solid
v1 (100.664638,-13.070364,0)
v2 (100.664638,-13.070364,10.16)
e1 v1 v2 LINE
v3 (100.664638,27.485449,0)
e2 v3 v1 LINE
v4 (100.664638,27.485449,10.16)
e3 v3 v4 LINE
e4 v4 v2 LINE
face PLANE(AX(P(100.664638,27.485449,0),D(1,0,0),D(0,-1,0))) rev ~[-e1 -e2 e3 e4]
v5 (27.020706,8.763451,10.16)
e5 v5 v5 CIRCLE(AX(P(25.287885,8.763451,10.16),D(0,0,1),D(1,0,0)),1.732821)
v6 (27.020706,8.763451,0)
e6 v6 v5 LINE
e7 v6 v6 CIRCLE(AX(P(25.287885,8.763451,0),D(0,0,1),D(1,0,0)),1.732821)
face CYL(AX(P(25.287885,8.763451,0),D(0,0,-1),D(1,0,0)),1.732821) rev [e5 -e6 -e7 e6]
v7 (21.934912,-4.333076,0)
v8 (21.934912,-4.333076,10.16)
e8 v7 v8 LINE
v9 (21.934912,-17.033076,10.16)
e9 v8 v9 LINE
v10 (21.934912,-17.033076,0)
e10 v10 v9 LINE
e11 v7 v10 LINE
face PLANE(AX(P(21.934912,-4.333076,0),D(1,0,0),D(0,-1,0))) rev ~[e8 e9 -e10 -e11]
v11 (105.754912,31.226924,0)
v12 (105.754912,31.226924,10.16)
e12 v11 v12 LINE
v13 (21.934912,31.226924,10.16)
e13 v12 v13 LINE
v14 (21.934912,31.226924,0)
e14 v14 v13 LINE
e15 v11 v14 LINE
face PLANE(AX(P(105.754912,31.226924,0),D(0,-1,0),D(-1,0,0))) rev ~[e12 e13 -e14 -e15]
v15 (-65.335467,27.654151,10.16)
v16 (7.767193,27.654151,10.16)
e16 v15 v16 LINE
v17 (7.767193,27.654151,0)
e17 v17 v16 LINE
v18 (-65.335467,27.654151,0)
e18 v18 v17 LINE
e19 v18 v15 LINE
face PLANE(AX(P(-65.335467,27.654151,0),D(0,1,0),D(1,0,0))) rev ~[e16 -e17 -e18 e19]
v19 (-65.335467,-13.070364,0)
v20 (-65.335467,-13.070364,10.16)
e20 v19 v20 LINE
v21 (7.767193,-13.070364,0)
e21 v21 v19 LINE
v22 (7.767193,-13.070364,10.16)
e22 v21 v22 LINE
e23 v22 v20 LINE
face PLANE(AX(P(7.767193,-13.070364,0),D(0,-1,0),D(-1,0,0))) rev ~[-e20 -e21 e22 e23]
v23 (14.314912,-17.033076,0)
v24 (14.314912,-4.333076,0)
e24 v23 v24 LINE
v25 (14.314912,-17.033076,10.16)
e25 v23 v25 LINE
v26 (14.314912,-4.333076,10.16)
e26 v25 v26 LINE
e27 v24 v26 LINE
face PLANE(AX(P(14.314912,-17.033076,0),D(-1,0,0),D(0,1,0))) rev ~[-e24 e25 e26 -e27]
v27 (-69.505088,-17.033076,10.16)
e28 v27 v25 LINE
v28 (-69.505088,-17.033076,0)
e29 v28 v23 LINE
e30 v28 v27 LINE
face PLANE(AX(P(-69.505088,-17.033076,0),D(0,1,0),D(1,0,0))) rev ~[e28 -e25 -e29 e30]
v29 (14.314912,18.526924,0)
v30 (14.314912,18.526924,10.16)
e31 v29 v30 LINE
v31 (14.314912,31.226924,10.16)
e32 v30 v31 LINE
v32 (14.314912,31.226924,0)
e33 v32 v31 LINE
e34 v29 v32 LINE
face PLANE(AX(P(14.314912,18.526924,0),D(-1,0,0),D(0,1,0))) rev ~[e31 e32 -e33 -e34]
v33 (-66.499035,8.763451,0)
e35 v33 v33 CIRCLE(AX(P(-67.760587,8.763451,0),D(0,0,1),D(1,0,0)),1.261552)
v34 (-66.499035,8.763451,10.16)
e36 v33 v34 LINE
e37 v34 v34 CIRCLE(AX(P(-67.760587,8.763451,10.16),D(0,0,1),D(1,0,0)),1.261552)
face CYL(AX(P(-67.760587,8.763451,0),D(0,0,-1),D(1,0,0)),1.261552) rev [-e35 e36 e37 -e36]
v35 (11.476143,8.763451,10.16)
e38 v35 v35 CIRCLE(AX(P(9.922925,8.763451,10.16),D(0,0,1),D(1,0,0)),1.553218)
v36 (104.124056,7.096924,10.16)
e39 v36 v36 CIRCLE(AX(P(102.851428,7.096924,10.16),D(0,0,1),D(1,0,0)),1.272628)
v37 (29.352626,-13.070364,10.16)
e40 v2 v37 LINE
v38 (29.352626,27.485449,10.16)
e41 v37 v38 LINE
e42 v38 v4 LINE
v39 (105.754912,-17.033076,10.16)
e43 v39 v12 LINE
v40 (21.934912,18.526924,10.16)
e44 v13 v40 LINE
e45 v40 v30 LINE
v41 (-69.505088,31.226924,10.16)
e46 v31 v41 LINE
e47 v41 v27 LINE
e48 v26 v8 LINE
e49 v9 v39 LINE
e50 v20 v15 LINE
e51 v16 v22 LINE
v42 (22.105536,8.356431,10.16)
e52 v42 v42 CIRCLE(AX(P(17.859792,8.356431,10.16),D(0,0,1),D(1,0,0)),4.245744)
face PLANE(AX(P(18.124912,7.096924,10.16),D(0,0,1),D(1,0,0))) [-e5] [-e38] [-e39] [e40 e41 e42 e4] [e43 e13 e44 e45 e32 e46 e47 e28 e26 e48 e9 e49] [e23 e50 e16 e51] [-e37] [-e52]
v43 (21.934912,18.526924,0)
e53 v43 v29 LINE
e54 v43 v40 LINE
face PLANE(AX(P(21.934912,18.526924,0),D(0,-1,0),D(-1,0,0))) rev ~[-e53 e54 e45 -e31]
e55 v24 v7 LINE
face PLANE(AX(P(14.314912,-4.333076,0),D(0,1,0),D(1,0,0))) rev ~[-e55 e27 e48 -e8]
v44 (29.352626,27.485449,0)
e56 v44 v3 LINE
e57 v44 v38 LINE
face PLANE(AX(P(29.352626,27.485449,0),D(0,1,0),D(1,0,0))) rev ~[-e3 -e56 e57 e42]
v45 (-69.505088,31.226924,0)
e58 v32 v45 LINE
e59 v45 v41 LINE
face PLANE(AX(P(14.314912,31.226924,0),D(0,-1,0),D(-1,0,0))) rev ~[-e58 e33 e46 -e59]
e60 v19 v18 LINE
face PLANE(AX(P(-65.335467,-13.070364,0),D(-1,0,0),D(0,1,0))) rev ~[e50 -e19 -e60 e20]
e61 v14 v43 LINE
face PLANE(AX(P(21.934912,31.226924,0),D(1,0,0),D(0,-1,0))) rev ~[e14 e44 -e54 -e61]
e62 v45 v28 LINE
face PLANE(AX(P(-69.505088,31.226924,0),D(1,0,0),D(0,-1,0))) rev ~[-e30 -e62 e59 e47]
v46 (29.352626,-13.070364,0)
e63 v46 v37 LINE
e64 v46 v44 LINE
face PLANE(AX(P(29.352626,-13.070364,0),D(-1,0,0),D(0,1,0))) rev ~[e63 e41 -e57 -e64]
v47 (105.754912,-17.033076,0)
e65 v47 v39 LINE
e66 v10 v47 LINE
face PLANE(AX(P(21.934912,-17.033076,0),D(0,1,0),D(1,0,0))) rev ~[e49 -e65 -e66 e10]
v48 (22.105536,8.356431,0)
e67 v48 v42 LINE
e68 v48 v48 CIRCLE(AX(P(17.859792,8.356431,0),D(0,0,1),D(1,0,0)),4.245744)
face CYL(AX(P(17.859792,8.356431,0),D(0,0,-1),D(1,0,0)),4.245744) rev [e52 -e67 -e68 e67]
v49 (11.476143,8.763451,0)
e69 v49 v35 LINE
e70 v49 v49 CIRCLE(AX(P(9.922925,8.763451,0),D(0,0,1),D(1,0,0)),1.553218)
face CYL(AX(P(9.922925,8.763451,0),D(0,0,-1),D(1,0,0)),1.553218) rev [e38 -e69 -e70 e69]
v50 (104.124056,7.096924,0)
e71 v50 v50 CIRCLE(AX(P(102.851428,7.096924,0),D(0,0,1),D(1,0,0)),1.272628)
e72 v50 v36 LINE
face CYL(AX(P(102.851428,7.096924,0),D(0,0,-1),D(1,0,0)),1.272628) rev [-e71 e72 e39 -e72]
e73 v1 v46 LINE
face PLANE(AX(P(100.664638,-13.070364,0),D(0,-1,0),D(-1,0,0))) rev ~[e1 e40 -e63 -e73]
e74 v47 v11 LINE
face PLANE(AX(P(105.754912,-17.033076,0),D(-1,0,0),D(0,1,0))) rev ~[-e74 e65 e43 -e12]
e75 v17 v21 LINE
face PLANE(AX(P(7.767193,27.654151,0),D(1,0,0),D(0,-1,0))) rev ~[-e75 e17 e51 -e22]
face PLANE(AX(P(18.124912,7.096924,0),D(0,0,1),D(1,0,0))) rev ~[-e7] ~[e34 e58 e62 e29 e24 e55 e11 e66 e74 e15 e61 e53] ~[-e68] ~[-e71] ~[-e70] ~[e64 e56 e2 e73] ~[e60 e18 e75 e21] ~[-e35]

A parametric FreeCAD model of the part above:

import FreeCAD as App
import Part
import Sketcher
Q = App.Units.Quantity

doc = App.newDocument("Part")
body = doc.addObject("PartDesign::Body", "Body")

# Sketch on XY plane
sketch1 = doc.addObject("Sketcher::SketchObject", "Sketch")
body.addObject(sketch1)
sketch1.AttachmentSupport = (doc.XY_Plane, [""])
sketch1.MapMode = "FlatFace"
sketch1.addGeometry([
    Part.LineSegment(App.Vector(14.3, 31.2, 0), App.Vector(-69.5, 31.2, 0)),  # 0
    Part.LineSegment(App.Vector(-69.5, 31.2, 0), App.Vector(-69.5, -17, 0)),  # 1
    Part.LineSegment(App.Vector(-69.5, -17, 0), App.Vector(14.3, -17, 0)),  # 2
    Part.LineSegment(App.Vector(14.3, -17, 0), App.Vector(14.3, -4.3, 0)),  # 3
    Part.LineSegment(App.Vector(14.3, -4.3, 0), App.Vector(21.9, -4.3, 0)),  # 4
    Part.LineSegment(App.Vector(21.9, -4.3, 0), App.Vector(21.9, -17, 0)),  # 5
    Part.LineSegment(App.Vector(21.9, -17, 0), App.Vector(105.8, -17, 0)),  # 6
    Part.LineSegment(App.Vector(105.8, -17, 0), App.Vector(105.8, 31.2, 0)),  # 7
    Part.LineSegment(App.Vector(105.8, 31.2, 0), App.Vector(21.9, 31.2, 0)),  # 8
    Part.LineSegment(App.Vector(21.9, 31.2, 0), App.Vector(21.9, 18.5, 0)),  # 9
    Part.LineSegment(App.Vector(21.9, 18.5, 0), App.Vector(14.3, 18.5, 0)),  # 10
    Part.LineSegment(App.Vector(14.3, 18.5, 0), App.Vector(14.3, 31.2, 0)),  # 11
    Part.LineSegment(App.Vector(7.8, -13.1, 0), App.Vector(-65.3, -13.1, 0)),  # 12
    Part.LineSegment(App.Vector(-65.3, -13.1, 0), App.Vector(-65.3, 27.7, 0)),  # 13
    Part.LineSegment(App.Vector(-65.3, 27.7, 0), App.Vector(7.8, 27.7, 0)),  # 14
    Part.LineSegment(App.Vector(7.8, 27.7, 0), App.Vector(7.8, -13.1, 0)),  # 15
    Part.LineSegment(App.Vector(100.7, -13.1, 0), App.Vector(29.4, -13.1, 0)),  # 16
    Part.LineSegment(App.Vector(29.4, -13.1, 0), App.Vector(29.4, 27.5, 0)),  # 17
    Part.LineSegment(App.Vector(29.4, 27.5, 0), App.Vector(100.7, 27.5, 0)),  # 18
    Part.LineSegment(App.Vector(100.7, 27.5, 0), App.Vector(100.7, -13.1, 0)),  # 19
    Part.Circle(App.Vector(102.9, 7.1, 0), App.Vector(0, 0, 1), 1.3),  # 20
    Part.Circle(App.Vector(-67.8, 8.8, 0), App.Vector(0, 0, 1), 1.3),  # 21
    Part.Circle(App.Vector(9.9, 8.8, 0), App.Vector(0, 0, 1), 1.6),  # 22
    Part.Circle(App.Vector(17.9, 8.4, 0), App.Vector(0, 0, 1), 4.2),  # 23
    Part.Circle(App.Vector(25.3, 8.8, 0), App.Vector(0, 0, 1), 1.7),  # 24
], False)
sketch1.addConstraint([
    Sketcher.Constraint("Coincident", 0, 2, 1, 1),
    Sketcher.Constraint("Coincident", 1, 2, 2, 1),
    Sketcher.Constraint("Coincident", 2, 2, 3, 1),
    Sketcher.Constraint("Coincident", 3, 2, 4, 1),
    Sketcher.Constraint("Coincident", 4, 2, 5, 1),
    Sketcher.Constraint("Coincident", 5, 2, 6, 1),
    Sketcher.Constraint("Coincident", 6, 2, 7, 1),
    Sketcher.Constraint("Coincident", 7, 2, 8, 1),
    Sketcher.Constraint("Coincident", 8, 2, 9, 1),
    Sketcher.Constraint("Coincident", 9, 2, 10, 1),
    Sketcher.Constraint("Coincident", 10, 2, 11, 1),
    Sketcher.Constraint("Coincident", 11, 2, 0, 1),
    Sketcher.Constraint("Coincident", 12, 2, 13, 1),
    Sketcher.Constraint("Coincident", 13, 2, 14, 1),
    Sketcher.Constraint("Coincident", 14, 2, 15, 1),
    Sketcher.Constraint("Coincident", 15, 2, 12, 1),
    Sketcher.Constraint("Coincident", 16, 2, 17, 1),
    Sketcher.Constraint("Coincident", 17, 2, 18, 1),
    Sketcher.Constraint("Coincident", 18, 2, 19, 1),
    Sketcher.Constraint("Coincident", 19, 2, 16, 1),
    Sketcher.Constraint("Horizontal", 0),
    Sketcher.Constraint("Vertical", 1),
    Sketcher.Constraint("Horizontal", 2),
    Sketcher.Constraint("Vertical", 3),
    Sketcher.Constraint("Horizontal", 4),
    Sketcher.Constraint("Vertical", 5),
    Sketcher.Constraint("Horizontal", 6),
    Sketcher.Constraint("Vertical", 7),
    Sketcher.Constraint("Horizontal", 8),
    Sketcher.Constraint("Vertical", 9),
    Sketcher.Constraint("Horizontal", 10),
    Sketcher.Constraint("Vertical", 11),
    Sketcher.Constraint("Horizontal", 12),
    Sketcher.Constraint("Vertical", 13),
    Sketcher.Constraint("Horizontal", 14),
    Sketcher.Constraint("Vertical", 15),
    Sketcher.Constraint("Horizontal", 16),
    Sketcher.Constraint("Vertical", 17),
    Sketcher.Constraint("Horizontal", 18),
    Sketcher.Constraint("Vertical", 19),
    Sketcher.Constraint("Horizontal", 21, 3, 22, 3),
    Sketcher.Constraint("Horizontal", 22, 3, 24, 3),
    Sketcher.Constraint("Horizontal", 2, 2, 5, 2),
    Sketcher.Constraint("Horizontal", 0, 2, 7, 2),
    Sketcher.Constraint("Horizontal", 15, 2, 16, 2),
    Sketcher.Constraint("Vertical", 5, 2, 8, 2),
    Sketcher.Constraint("Vertical", 3, 2, 10, 2),
    Sketcher.Constraint("Equal", 2, 6),
    Sketcher.Constraint("Equal", 5, 9),
    Sketcher.Constraint("DistanceX", 0, 2, 0, 1, Q("3.3 in")),
    Sketcher.Constraint("DistanceX", 4, 1, 4, 2, Q("0.3 in")),
    Sketcher.Constraint("DistanceY", 1, 2, 1, 1, Q("1.9 in")),
    Sketcher.Constraint("DistanceY", 3, 1, 3, 2, Q("0.5 in")),
    Sketcher.Constraint("DistanceY", 20, 3, 0, 2, Q("0.95 in")),
    Sketcher.Constraint("Diameter", 24, 3.465642),
    Sketcher.Constraint("Diameter", 20, 2.545256),
    Sketcher.Constraint("Diameter", 21, 2.523104),
    Sketcher.Constraint("Diameter", 22, 3.106436),
    Sketcher.Constraint("Diameter", 23, 8.491488),
    Sketcher.Constraint("DistanceX", 12, 2, 12, 1, 73.10266),
    Sketcher.Constraint("DistanceX", 16, 2, 16, 1, 71.312012),
    Sketcher.Constraint("DistanceX", 0, 2, 21, 3, 1.744501),
    Sketcher.Constraint("DistanceY", 21, 3, 13, 2, 18.8907),
    Sketcher.Constraint("DistanceY", 13, 1, 13, 2, 40.724515),
    Sketcher.Constraint("DistanceY", 17, 1, 17, 2, 40.555813),
    Sketcher.Constraint("DistanceX", -1, 1, 20, 3, 102.851428),
    Sketcher.Constraint("DistanceY", -1, 1, 21, 3, 8.763451),
    Sketcher.Constraint("DistanceX", -1, 1, 23, 3, 17.859792),
    Sketcher.Constraint("DistanceY", -1, 1, 23, 3, 8.356431),
    Sketcher.Constraint("DistanceX", 0, 2, -1, 1, 69.505088),
    Sketcher.Constraint("DistanceX", 22, 3, 24, 3, 15.36496),
    Sketcher.Constraint("DistanceX", 1, 2, 12, 2, 4.169621),
    Sketcher.Constraint("DistanceY", 12, 2, 0, 2, 44.297288),
    Sketcher.Constraint("DistanceX", 12, 2, 22, 3, 75.258392),
    Sketcher.Constraint("DistanceX", 24, 3, 17, 2, 4.064741),
])
pad1 = doc.addObject("PartDesign::Pad", "Pad")
body.addObject(pad1)
pad1.Profile = sketch1
pad1.Length = Q("0.4 in")

doc.recompute()
